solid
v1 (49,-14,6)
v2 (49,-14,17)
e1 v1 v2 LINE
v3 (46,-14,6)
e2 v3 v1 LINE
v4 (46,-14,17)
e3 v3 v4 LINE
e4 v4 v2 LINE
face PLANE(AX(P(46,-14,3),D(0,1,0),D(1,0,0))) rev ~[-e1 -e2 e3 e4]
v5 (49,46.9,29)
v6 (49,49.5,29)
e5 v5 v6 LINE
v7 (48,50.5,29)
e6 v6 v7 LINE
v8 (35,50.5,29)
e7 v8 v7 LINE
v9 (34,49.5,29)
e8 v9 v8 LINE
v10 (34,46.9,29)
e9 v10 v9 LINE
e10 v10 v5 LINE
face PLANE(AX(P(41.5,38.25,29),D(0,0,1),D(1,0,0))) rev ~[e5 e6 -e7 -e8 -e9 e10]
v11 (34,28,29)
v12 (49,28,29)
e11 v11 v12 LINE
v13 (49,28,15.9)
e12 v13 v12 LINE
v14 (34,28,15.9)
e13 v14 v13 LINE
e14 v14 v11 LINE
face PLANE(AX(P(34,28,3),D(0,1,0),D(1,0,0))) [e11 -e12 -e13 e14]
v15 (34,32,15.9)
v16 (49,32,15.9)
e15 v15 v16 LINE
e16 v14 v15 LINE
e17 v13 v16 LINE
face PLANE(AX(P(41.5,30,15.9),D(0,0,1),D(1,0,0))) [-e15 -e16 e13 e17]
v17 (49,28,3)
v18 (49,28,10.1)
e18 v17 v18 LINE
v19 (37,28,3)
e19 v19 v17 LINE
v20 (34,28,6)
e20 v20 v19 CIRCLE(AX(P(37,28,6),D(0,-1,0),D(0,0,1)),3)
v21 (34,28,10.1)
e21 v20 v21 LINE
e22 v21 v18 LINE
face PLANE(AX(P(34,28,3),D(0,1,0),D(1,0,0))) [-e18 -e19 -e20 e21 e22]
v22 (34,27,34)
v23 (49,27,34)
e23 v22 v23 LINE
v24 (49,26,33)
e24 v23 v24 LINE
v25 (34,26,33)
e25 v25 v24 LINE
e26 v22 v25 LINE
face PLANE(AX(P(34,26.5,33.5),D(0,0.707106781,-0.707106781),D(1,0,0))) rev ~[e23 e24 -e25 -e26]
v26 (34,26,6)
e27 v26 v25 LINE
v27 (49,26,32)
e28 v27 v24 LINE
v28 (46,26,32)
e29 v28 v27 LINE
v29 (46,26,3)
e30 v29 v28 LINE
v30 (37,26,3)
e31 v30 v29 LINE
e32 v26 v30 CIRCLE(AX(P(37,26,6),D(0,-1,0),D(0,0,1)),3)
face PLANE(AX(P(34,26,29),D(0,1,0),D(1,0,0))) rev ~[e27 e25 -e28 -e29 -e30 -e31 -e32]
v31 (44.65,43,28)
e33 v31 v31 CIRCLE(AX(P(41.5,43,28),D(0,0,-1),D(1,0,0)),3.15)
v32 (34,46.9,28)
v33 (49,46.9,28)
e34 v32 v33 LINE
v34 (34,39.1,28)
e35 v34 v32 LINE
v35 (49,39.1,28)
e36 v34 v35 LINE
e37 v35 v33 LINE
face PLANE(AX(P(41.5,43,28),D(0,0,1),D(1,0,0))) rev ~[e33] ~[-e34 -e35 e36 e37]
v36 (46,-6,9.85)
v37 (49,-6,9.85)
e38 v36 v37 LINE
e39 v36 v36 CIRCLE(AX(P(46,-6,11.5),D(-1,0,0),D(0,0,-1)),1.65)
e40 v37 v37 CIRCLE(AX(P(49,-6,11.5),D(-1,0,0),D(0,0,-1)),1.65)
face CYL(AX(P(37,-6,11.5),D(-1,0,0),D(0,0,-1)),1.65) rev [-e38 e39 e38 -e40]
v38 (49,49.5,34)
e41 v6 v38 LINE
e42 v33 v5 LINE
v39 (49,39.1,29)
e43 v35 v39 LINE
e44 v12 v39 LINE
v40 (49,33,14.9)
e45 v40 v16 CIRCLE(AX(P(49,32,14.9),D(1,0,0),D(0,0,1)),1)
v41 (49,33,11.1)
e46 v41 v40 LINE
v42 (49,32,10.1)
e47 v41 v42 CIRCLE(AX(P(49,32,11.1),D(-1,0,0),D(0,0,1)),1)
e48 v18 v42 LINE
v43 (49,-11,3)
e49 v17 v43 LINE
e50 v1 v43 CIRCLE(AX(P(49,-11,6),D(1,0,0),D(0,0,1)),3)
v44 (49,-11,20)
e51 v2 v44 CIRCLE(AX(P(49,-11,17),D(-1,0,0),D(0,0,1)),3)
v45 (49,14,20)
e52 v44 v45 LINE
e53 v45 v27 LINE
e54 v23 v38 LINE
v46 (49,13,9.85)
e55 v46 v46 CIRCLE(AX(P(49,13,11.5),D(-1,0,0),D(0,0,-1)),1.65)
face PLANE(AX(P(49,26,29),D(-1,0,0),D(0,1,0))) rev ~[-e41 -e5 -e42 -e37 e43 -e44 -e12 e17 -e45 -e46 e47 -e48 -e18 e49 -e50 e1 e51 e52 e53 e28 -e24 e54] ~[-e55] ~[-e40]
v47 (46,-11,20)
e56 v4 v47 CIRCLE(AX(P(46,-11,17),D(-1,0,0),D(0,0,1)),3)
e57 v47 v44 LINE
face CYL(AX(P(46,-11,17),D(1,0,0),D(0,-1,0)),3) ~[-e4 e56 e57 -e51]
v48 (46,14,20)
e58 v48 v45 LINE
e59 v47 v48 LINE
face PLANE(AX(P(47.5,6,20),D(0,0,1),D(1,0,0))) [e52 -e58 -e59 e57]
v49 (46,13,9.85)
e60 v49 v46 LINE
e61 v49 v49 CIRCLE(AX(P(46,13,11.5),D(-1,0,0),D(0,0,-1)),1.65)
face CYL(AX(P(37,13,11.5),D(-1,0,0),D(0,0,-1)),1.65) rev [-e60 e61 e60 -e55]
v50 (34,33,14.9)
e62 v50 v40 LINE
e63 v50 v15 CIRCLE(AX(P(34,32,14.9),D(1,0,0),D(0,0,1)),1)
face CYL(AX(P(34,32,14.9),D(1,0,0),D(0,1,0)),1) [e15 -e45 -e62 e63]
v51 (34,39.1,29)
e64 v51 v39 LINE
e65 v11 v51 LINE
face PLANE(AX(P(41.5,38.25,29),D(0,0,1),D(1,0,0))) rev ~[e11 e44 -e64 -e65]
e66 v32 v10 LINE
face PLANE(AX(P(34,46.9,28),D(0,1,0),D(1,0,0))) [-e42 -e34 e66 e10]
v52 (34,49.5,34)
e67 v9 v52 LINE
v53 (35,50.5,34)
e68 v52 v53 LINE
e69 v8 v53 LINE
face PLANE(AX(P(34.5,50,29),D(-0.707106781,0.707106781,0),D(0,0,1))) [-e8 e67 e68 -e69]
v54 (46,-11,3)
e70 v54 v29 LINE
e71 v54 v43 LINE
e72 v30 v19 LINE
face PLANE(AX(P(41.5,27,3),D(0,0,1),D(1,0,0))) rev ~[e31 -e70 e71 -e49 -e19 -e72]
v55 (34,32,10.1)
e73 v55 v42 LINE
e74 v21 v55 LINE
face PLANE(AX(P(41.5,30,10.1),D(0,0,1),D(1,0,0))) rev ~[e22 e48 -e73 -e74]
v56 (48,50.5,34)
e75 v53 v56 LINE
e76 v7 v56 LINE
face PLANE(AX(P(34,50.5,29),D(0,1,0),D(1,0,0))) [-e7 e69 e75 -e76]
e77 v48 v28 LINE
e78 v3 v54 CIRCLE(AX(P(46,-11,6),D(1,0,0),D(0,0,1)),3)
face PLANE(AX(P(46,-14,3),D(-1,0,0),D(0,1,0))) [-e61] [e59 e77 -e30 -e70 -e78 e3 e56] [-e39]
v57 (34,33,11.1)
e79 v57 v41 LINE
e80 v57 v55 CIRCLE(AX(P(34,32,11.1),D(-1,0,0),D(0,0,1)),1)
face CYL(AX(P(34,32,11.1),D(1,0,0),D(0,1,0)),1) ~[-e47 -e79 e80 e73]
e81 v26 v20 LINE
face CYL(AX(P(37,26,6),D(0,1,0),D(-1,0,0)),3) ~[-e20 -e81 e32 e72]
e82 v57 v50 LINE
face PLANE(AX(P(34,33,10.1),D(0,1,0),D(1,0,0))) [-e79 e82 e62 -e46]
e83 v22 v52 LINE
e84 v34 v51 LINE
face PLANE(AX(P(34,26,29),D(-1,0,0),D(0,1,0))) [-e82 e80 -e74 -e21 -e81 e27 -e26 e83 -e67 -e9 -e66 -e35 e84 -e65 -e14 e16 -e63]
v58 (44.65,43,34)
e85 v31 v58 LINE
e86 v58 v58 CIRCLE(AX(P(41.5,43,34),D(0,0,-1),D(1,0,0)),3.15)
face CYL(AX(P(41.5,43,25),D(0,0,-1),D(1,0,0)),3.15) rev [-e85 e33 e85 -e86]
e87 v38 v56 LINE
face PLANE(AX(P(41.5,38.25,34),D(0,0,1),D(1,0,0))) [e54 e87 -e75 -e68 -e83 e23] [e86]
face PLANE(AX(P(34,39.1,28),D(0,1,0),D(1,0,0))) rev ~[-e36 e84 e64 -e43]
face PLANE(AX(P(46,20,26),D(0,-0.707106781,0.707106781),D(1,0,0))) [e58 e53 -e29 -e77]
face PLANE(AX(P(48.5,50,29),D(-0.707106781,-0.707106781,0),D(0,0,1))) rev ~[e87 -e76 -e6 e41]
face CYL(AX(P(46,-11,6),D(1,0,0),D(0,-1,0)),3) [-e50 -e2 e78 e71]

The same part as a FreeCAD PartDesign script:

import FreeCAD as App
import Part
import Sketcher
Q = App.Units.Quantity


def edges_at(feature, points):
    """Names of the edges that pass closest to the given points."""
    edges = feature.Shape.Edges
    near = lambda p: min(range(len(edges)), key=lambda i: edges[i].distToShape(Part.Vertex(*p))[0])
    return sorted({f"Edge{near(p) + 1}" for p in points})


def add_polygon(sketch, points):
    """Adds a closed chain of lines whose ends are joined by coincident constraints."""
    first, n = sketch.GeometryCount, len(points)
    for a, b in zip(points, points[1:] + points[:1]):
        sketch.addGeometry(Part.LineSegment(App.Vector(*a, 0), App.Vector(*b, 0)), False)
    for i in range(n):
        sketch.addConstraint(Sketcher.Constraint("Coincident", first + i, 2, first + (i + 1) % n, 1))

doc = App.newDocument("Part")
params = doc.addObject("Spreadsheet::Sheet", "Params")
for row, (alias, value) in enumerate([
    ("sketch1_width", "15 mm"),
    ("sketch1_height", "2 mm"),
    ("pad1_length", "26 mm"),
    ("fillet_radius", "3 mm"),
    ("sketch2_width", "15 mm"),
    ("sketch2_height", "6 mm"),
    ("pad2_length", "5.8 mm"),
    ("fillet2_radius", "1 mm"),
    ("sketch3_diameter", "6.3 mm"),
    ("pad3_length", "10 mm"),
    ("sketch4_width", "15 mm"),
    ("sketch4_height", "24.5 mm"),
    ("pad4_length", "5 mm"),
    ("chamfer_size", "1 mm"),
    ("sketch5_width", "15 mm"),
    ("sketch5_height", "7.8 mm"),
    ("pad5_length", "2 mm"),
    ("sketch6_diameter", "3.3 mm"),
    ("pad6_length", "14 mm"),
    ("sketch7_diameter", "3.3 mm"),
    ("pad7_length", "14 mm"),
    ("sketch8_width", "3 mm"),
    ("sketch8_height", "40 mm"),
    ("pad8_length", "17 mm"),
    ("fillet3_radius", "3 mm"),
    ("chamfer2_size", "12 mm"),
    ("chamfer3_size", "1 mm"),
], start=1):
    params.set(f"A{row}", alias)
    params.set(f"B{row}", "=" + value)
    params.setAlias(f"B{row}", alias)

body = doc.addObject("PartDesign::Body", "Body")

# Sketch on XY plane
sketch1 = doc.addObject("Sketcher::SketchObject", "Sketch")
body.addObject(sketch1)
sketch1.AttachmentSupport = (doc.XY_Plane, [""])
sketch1.MapMode = "FlatFace"
sketch1.AttachmentOffset = App.Placement(App.Vector(0, 0, 3), App.Rotation())
add_polygon(sketch1, [(34, 28), (34, 26), (49, 26), (49, 28)])  # lines 0-3
sketch1.addConstraint(Sketcher.Constraint("Vertical", 0))
sketch1.addConstraint(Sketcher.Constraint("Horizontal", 1))
sketch1.addConstraint(Sketcher.Constraint("Vertical", 2))
sketch1.addConstraint(Sketcher.Constraint("Horizontal", 3))
sketch1.addConstraint(Sketcher.Constraint("DistanceX", 1, 1, 1, 2, Q("15 mm")))
sketch1.addConstraint(Sketcher.Constraint("DistanceY", 0, 2, 0, 1, Q("2 mm")))
sketch1.addConstraint(Sketcher.Constraint("DistanceX", -1, 1, 0, 2, Q("34 mm")))
sketch1.addConstraint(Sketcher.Constraint("DistanceY", -1, 1, 0, 2, Q("26 mm")))
sketch1.setExpression("Constraints[8]", "Params.sketch1_width")
sketch1.setExpression("Constraints[9]", "Params.sketch1_height")
pad1 = doc.addObject("PartDesign::Pad", "Pad")
body.addObject(pad1)
pad1.Profile = sketch1
pad1.setExpression("Length", "Params.pad1_length")
doc.recompute()

fillet = doc.addObject("PartDesign::Fillet", "Fillet")
body.addObject(fillet)
fillet.Base = (pad1, edges_at(pad1, [(34, 27, 3)]))
fillet.setExpression("Radius", "Params.fillet_radius")
body2 = doc.addObject("PartDesign::Body", "Body001")

# Sketch on XY plane
sketch2 = doc.addObject("Sketcher::SketchObject", "Sketch001")
body2.addObject(sketch2)
sketch2.AttachmentSupport = (doc.getObject("XY_Plane001"), [""])
sketch2.MapMode = "FlatFace"
sketch2.AttachmentOffset = App.Placement(App.Vector(0, 0, 10.1), App.Rotation())
add_polygon(sketch2, [(34, 33), (34, 27), (49, 27), (49, 33)])  # lines 0-3
sketch2.addConstraint(Sketcher.Constraint("Vertical", 0))
sketch2.addConstraint(Sketcher.Constraint("Horizontal", 1))
sketch2.addConstraint(Sketcher.Constraint("Vertical", 2))
sketch2.addConstraint(Sketcher.Constraint("Horizontal", 3))
sketch2.addConstraint(Sketcher.Constraint("DistanceX", 1, 1, 1, 2, Q("15 mm")))
sketch2.addConstraint(Sketcher.Constraint("DistanceY", 0, 2, 0, 1, Q("6 mm")))
sketch2.addConstraint(Sketcher.Constraint("DistanceX", -1, 1, 0, 2, Q("34 mm")))
sketch2.addConstraint(Sketcher.Constraint("DistanceY", -1, 1, 0, 2, Q("27 mm")))
sketch2.setExpression("Constraints[8]", "Params.sketch2_width")
sketch2.setExpression("Constraints[9]", "Params.sketch2_height")
pad2 = doc.addObject("PartDesign::Pad", "Pad001")
body2.addObject(pad2)
pad2.Profile = sketch2
pad2.setExpression("Length", "Params.pad2_length")
doc.recompute()

fillet2 = doc.addObject("PartDesign::Fillet", "Fillet001")
body2.addObject(fillet2)
fillet2.Base = (pad2, edges_at(pad2, [(41.5, 33, 10.1), (41.5, 33, 15.9)]))
fillet2.setExpression("Radius", "Params.fillet2_radius")
body3 = doc.addObject("PartDesign::Body", "Body002")

# Sketch on XY plane
sketch3 = doc.addObject("Sketcher::SketchObject", "Sketch002")
body3.addObject(sketch3)
sketch3.AttachmentSupport = (doc.getObject("XY_Plane002"), [""])
sketch3.MapMode = "FlatFace"
sketch3.AttachmentOffset = App.Placement(App.Vector(0, 0, 25), App.Rotation())
sketch3.addGeometry(Part.Circle(App.Vector(41.5, 43, 0), App.Vector(0, 0, 1), 3.1), False)
sketch3.addConstraint(Sketcher.Constraint("Diameter", 0, Q("6.3 mm")))
sketch3.addConstraint(Sketcher.Constraint("DistanceY", -1, 1, 0, 3, Q("43 mm")))
sketch3.addConstraint(Sketcher.Constraint("DistanceX", -1, 1, 0, 3, Q("41.5 mm")))
sketch3.setExpression("Constraints[0]", "Params.sketch3_diameter")
pad3 = doc.addObject("PartDesign::Pad", "Pad002")
body3.addObject(pad3)
pad3.Profile = sketch3
pad3.setExpression("Length", "Params.pad3_length")
body4 = doc.addObject("PartDesign::Body", "Body003")

# Sketch on XY plane
sketch4 = doc.addObject("Sketcher::SketchObject", "Sketch003")
body4.addObject(sketch4)
sketch4.AttachmentSupport = (doc.getObject("XY_Plane003"), [""])
sketch4.MapMode = "FlatFace"
sketch4.AttachmentOffset = App.Placement(App.Vector(0, 0, 29), App.Rotation())
add_polygon(sketch4, [(34, 50), (34, 26), (49, 26), (49, 50)])  # lines 0-3
sketch4.addConstraint(Sketcher.Constraint("Vertical", 0))
sketch4.addConstraint(Sketcher.Constraint("Horizontal", 1))
sketch4.addConstraint(Sketcher.Constraint("Vertical", 2))
sketch4.addConstraint(Sketcher.Constraint("Horizontal", 3))
sketch4.addConstraint(Sketcher.Constraint("DistanceX", 1, 1, 1, 2, Q("15 mm")))
sketch4.addConstraint(Sketcher.Constraint("DistanceY", 0, 2, 0, 1, Q("24.5 mm")))
sketch4.addConstraint(Sketcher.Constraint("DistanceX", -1, 1, 0, 2, Q("34 mm")))
sketch4.addConstraint(Sketcher.Constraint("DistanceY", -1, 1, 0, 2, Q("26 mm")))
sketch4.setExpression("Constraints[8]", "Params.sketch4_width")
sketch4.setExpression("Constraints[9]", "Params.sketch4_height")
pad4 = doc.addObject("PartDesign::Pad", "Pad003")
body4.addObject(pad4)
pad4.Profile = sketch4
pad4.setExpression("Length", "Params.pad4_length")
doc.recompute()

chamfer = doc.addObject("PartDesign::Chamfer", "Chamfer")
body4.addObject(chamfer)
chamfer.Base = (pad4, edges_at(pad4, [(34, 50.5, 31.5), (49, 50.5, 31.5)]))
chamfer.setExpression("Size", "Params.chamfer_size")
body5 = doc.addObject("PartDesign::Body", "Body004")

# Sketch on XY plane
sketch5 = doc.addObject("Sketcher::SketchObject", "Sketch004")
body5.addObject(sketch5)
sketch5.AttachmentSupport = (doc.getObject("XY_Plane004"), [""])
sketch5.MapMode = "FlatFace"
sketch5.AttachmentOffset = App.Placement(App.Vector(0, 0, 28), App.Rotation())
add_polygon(sketch5, [(34, 47), (34, 39), (49, 39), (49, 47)])  # lines 0-3
sketch5.addConstraint(Sketcher.Constraint("Vertical", 0))
sketch5.addConstraint(Sketcher.Constraint("Horizontal", 1))
sketch5.addConstraint(Sketcher.Constraint("Vertical", 2))
sketch5.addConstraint(Sketcher.Constraint("Horizontal", 3))
sketch5.addConstraint(Sketcher.Constraint("DistanceX", 1, 1, 1, 2, Q("15 mm")))
sketch5.addConstraint(Sketcher.Constraint("DistanceY", 0, 2, 0, 1, Q("7.8 mm")))
sketch5.addConstraint(Sketcher.Constraint("DistanceX", -1, 1, 0, 2, Q("34 mm")))
sketch5.addConstraint(Sketcher.Constraint("DistanceY", -1, 1, 0, 2, Q("39.1 mm")))
sketch5.setExpression("Constraints[8]", "Params.sketch5_width")
sketch5.setExpression("Constraints[9]", "Params.sketch5_height")
pad5 = doc.addObject("PartDesign::Pad", "Pad004")
body5.addObject(pad5)
pad5.Profile = sketch5
pad5.setExpression("Length", "Params.pad5_length")
doc.recompute()

boolean = doc.addObject("PartDesign::Boolean", "Boolean")
body5.addObject(boolean)
boolean.Type = "Fuse"
boolean.addObjects([body4])
doc.recompute()

boolean2 = doc.addObject("PartDesign::Boolean", "Boolean001")
body5.addObject(boolean2)
boolean2.Type = "Cut"
boolean2.addObjects([body3])
body6 = doc.addObject("PartDesign::Body", "Body005")

# Sketch on YZ plane
sketch6 = doc.addObject("Sketcher::SketchObject", "Sketch005")
body6.addObject(sketch6)
sketch6.AttachmentSupport = (doc.getObject("YZ_Plane005"), [""])
sketch6.MapMode = "FlatFace"
sketch6.AttachmentOffset = App.Placement(App.Vector(0, 0, 37), App.Rotation())
sketch6.addGeometry(Part.Circle(App.Vector(13, 11.5, 0), App.Vector(0, 0, 1), 1.6), False)
sketch6.addConstraint(Sketcher.Constraint("Diameter", 0, Q("3.3 mm")))
sketch6.addConstraint(Sketcher.Constraint("DistanceX", -1, 1, 0, 3, Q("13 mm")))
sketch6.addConstraint(Sketcher.Constraint("DistanceY", -1, 1, 0, 3, Q("11.5 mm")))
sketch6.setExpression("Constraints[0]", "Params.sketch6_diameter")
pad6 = doc.addObject("PartDesign::Pad", "Pad005")
body6.addObject(pad6)
pad6.Profile = sketch6
pad6.setExpression("Length", "Params.pad6_length")
body7 = doc.addObject("PartDesign::Body", "Body006")
body7.AllowCompound = True

# Sketch on YZ plane
sketch7 = doc.addObject("Sketcher::SketchObject", "Sketch006")
body7.addObject(sketch7)
sketch7.AttachmentSupport = (doc.getObject("YZ_Plane006"), [""])
sketch7.MapMode = "FlatFace"
sketch7.AttachmentOffset = App.Placement(App.Vector(0, 0, 37), App.Rotation())
sketch7.addGeometry(Part.Circle(App.Vector(-6, 11.5, 0), App.Vector(0, 0, 1), 1.6), False)
sketch7.addConstraint(Sketcher.Constraint("Diameter", 0, Q("3.3 mm")))
sketch7.addConstraint(Sketcher.Constraint("DistanceX", 0, 3, -1, 1, Q("6 mm")))
sketch7.addConstraint(Sketcher.Constraint("DistanceY", -1, 1, 0, 3, Q("11.5 mm")))
sketch7.setExpression("Constraints[0]", "Params.sketch7_diameter")
pad7 = doc.addObject("PartDesign::Pad", "Pad006")
body7.addObject(pad7)
pad7.Profile = sketch7
pad7.setExpression("Length", "Params.pad7_length")
doc.recompute()

boolean3 = doc.addObject("PartDesign::Boolean", "Boolean002")
body7.addObject(boolean3)
boolean3.Type = "Fuse"
boolean3.addObjects([body6])
body8 = doc.addObject("PartDesign::Body", "Body007")

# Sketch on XY plane
sketch8 = doc.addObject("Sketcher::SketchObject", "Sketch007")
body8.addObject(sketch8)
sketch8.AttachmentSupport = (doc.getObject("XY_Plane007"), [""])
sketch8.MapMode = "FlatFace"
sketch8.AttachmentOffset = App.Placement(App.Vector(0, 0, 3), App.Rotation())
add_polygon(sketch8, [(46, 26), (46, -14), (49, -14), (49, 26)])  # lines 0-3
sketch8.addConstraint(Sketcher.Constraint("Vertical", 0))
sketch8.addConstraint(Sketcher.Constraint("Horizontal", 1))
sketch8.addConstraint(Sketcher.Constraint("Vertical", 2))
sketch8.addConstraint(Sketcher.Constraint("Horizontal", 3))
sketch8.addConstraint(Sketcher.Constraint("DistanceX", 1, 1, 1, 2, Q("3 mm")))
sketch8.addConstraint(Sketcher.Constraint("DistanceY", 0, 2, 0, 1, Q("40 mm")))
sketch8.addConstraint(Sketcher.Constraint("DistanceX", -1, 1, 0, 2, Q("46 mm")))
sketch8.addConstraint(Sketcher.Constraint("DistanceY", 0, 2, -1, 1, Q("14 mm")))
sketch8.setExpression("Constraints[8]", "Params.sketch8_width")
sketch8.setExpression("Constraints[9]", "Params.sketch8_height")
pad8 = doc.addObject("PartDesign::Pad", "Pad007")
body8.addObject(pad8)
pad8.Profile = sketch8
pad8.setExpression("Length", "Params.pad8_length")
doc.recompute()

fillet3 = doc.addObject("PartDesign::Fillet", "Fillet002")
body8.addObject(fillet3)
fillet3.Base = (pad8, edges_at(pad8, [(47.5, -14, 3), (47.5, -14, 20)]))
fillet3.setExpression("Radius", "Params.fillet3_radius")
doc.recompute()

boolean4 = doc.addObject("PartDesign::Boolean", "Boolean003")
body8.addObject(boolean4)
boolean4.Type = "Cut"
boolean4.addObjects([body7])
doc.recompute()

boolean5 = doc.addObject("PartDesign::Boolean", "Boolean004")
body8.addObject(boolean5)
boolean5.Type = "Fuse"
boolean5.addObjects([body])
doc.recompute()

boolean6 = doc.addObject("PartDesign::Boolean", "Boolean005")
body8.addObject(boolean6)
boolean6.Type = "Fuse"
boolean6.addObjects([body2])
doc.recompute()

boolean7 = doc.addObject("PartDesign::Boolean", "Boolean006")
body8.addObject(boolean7)
boolean7.Type = "Fuse"
boolean7.addObjects([body5])
doc.recompute()

chamfer2 = doc.addObject("PartDesign::Chamfer", "Chamfer001")
body8.addObject(chamfer2)
chamfer2.Base = (boolean7, edges_at(boolean7, [(47.5, 26, 20)]))
chamfer2.setExpression("Size", "Params.chamfer2_size")
doc.recompute()

chamfer3 = doc.addObject("PartDesign::Chamfer", "Chamfer002")
body8.addObject(chamfer3)
chamfer3.Base = (chamfer2, edges_at(chamfer2, [(41.5, 26, 34)]))
chamfer3.setExpression("Size", "Params.chamfer3_size")

doc.recompute()
